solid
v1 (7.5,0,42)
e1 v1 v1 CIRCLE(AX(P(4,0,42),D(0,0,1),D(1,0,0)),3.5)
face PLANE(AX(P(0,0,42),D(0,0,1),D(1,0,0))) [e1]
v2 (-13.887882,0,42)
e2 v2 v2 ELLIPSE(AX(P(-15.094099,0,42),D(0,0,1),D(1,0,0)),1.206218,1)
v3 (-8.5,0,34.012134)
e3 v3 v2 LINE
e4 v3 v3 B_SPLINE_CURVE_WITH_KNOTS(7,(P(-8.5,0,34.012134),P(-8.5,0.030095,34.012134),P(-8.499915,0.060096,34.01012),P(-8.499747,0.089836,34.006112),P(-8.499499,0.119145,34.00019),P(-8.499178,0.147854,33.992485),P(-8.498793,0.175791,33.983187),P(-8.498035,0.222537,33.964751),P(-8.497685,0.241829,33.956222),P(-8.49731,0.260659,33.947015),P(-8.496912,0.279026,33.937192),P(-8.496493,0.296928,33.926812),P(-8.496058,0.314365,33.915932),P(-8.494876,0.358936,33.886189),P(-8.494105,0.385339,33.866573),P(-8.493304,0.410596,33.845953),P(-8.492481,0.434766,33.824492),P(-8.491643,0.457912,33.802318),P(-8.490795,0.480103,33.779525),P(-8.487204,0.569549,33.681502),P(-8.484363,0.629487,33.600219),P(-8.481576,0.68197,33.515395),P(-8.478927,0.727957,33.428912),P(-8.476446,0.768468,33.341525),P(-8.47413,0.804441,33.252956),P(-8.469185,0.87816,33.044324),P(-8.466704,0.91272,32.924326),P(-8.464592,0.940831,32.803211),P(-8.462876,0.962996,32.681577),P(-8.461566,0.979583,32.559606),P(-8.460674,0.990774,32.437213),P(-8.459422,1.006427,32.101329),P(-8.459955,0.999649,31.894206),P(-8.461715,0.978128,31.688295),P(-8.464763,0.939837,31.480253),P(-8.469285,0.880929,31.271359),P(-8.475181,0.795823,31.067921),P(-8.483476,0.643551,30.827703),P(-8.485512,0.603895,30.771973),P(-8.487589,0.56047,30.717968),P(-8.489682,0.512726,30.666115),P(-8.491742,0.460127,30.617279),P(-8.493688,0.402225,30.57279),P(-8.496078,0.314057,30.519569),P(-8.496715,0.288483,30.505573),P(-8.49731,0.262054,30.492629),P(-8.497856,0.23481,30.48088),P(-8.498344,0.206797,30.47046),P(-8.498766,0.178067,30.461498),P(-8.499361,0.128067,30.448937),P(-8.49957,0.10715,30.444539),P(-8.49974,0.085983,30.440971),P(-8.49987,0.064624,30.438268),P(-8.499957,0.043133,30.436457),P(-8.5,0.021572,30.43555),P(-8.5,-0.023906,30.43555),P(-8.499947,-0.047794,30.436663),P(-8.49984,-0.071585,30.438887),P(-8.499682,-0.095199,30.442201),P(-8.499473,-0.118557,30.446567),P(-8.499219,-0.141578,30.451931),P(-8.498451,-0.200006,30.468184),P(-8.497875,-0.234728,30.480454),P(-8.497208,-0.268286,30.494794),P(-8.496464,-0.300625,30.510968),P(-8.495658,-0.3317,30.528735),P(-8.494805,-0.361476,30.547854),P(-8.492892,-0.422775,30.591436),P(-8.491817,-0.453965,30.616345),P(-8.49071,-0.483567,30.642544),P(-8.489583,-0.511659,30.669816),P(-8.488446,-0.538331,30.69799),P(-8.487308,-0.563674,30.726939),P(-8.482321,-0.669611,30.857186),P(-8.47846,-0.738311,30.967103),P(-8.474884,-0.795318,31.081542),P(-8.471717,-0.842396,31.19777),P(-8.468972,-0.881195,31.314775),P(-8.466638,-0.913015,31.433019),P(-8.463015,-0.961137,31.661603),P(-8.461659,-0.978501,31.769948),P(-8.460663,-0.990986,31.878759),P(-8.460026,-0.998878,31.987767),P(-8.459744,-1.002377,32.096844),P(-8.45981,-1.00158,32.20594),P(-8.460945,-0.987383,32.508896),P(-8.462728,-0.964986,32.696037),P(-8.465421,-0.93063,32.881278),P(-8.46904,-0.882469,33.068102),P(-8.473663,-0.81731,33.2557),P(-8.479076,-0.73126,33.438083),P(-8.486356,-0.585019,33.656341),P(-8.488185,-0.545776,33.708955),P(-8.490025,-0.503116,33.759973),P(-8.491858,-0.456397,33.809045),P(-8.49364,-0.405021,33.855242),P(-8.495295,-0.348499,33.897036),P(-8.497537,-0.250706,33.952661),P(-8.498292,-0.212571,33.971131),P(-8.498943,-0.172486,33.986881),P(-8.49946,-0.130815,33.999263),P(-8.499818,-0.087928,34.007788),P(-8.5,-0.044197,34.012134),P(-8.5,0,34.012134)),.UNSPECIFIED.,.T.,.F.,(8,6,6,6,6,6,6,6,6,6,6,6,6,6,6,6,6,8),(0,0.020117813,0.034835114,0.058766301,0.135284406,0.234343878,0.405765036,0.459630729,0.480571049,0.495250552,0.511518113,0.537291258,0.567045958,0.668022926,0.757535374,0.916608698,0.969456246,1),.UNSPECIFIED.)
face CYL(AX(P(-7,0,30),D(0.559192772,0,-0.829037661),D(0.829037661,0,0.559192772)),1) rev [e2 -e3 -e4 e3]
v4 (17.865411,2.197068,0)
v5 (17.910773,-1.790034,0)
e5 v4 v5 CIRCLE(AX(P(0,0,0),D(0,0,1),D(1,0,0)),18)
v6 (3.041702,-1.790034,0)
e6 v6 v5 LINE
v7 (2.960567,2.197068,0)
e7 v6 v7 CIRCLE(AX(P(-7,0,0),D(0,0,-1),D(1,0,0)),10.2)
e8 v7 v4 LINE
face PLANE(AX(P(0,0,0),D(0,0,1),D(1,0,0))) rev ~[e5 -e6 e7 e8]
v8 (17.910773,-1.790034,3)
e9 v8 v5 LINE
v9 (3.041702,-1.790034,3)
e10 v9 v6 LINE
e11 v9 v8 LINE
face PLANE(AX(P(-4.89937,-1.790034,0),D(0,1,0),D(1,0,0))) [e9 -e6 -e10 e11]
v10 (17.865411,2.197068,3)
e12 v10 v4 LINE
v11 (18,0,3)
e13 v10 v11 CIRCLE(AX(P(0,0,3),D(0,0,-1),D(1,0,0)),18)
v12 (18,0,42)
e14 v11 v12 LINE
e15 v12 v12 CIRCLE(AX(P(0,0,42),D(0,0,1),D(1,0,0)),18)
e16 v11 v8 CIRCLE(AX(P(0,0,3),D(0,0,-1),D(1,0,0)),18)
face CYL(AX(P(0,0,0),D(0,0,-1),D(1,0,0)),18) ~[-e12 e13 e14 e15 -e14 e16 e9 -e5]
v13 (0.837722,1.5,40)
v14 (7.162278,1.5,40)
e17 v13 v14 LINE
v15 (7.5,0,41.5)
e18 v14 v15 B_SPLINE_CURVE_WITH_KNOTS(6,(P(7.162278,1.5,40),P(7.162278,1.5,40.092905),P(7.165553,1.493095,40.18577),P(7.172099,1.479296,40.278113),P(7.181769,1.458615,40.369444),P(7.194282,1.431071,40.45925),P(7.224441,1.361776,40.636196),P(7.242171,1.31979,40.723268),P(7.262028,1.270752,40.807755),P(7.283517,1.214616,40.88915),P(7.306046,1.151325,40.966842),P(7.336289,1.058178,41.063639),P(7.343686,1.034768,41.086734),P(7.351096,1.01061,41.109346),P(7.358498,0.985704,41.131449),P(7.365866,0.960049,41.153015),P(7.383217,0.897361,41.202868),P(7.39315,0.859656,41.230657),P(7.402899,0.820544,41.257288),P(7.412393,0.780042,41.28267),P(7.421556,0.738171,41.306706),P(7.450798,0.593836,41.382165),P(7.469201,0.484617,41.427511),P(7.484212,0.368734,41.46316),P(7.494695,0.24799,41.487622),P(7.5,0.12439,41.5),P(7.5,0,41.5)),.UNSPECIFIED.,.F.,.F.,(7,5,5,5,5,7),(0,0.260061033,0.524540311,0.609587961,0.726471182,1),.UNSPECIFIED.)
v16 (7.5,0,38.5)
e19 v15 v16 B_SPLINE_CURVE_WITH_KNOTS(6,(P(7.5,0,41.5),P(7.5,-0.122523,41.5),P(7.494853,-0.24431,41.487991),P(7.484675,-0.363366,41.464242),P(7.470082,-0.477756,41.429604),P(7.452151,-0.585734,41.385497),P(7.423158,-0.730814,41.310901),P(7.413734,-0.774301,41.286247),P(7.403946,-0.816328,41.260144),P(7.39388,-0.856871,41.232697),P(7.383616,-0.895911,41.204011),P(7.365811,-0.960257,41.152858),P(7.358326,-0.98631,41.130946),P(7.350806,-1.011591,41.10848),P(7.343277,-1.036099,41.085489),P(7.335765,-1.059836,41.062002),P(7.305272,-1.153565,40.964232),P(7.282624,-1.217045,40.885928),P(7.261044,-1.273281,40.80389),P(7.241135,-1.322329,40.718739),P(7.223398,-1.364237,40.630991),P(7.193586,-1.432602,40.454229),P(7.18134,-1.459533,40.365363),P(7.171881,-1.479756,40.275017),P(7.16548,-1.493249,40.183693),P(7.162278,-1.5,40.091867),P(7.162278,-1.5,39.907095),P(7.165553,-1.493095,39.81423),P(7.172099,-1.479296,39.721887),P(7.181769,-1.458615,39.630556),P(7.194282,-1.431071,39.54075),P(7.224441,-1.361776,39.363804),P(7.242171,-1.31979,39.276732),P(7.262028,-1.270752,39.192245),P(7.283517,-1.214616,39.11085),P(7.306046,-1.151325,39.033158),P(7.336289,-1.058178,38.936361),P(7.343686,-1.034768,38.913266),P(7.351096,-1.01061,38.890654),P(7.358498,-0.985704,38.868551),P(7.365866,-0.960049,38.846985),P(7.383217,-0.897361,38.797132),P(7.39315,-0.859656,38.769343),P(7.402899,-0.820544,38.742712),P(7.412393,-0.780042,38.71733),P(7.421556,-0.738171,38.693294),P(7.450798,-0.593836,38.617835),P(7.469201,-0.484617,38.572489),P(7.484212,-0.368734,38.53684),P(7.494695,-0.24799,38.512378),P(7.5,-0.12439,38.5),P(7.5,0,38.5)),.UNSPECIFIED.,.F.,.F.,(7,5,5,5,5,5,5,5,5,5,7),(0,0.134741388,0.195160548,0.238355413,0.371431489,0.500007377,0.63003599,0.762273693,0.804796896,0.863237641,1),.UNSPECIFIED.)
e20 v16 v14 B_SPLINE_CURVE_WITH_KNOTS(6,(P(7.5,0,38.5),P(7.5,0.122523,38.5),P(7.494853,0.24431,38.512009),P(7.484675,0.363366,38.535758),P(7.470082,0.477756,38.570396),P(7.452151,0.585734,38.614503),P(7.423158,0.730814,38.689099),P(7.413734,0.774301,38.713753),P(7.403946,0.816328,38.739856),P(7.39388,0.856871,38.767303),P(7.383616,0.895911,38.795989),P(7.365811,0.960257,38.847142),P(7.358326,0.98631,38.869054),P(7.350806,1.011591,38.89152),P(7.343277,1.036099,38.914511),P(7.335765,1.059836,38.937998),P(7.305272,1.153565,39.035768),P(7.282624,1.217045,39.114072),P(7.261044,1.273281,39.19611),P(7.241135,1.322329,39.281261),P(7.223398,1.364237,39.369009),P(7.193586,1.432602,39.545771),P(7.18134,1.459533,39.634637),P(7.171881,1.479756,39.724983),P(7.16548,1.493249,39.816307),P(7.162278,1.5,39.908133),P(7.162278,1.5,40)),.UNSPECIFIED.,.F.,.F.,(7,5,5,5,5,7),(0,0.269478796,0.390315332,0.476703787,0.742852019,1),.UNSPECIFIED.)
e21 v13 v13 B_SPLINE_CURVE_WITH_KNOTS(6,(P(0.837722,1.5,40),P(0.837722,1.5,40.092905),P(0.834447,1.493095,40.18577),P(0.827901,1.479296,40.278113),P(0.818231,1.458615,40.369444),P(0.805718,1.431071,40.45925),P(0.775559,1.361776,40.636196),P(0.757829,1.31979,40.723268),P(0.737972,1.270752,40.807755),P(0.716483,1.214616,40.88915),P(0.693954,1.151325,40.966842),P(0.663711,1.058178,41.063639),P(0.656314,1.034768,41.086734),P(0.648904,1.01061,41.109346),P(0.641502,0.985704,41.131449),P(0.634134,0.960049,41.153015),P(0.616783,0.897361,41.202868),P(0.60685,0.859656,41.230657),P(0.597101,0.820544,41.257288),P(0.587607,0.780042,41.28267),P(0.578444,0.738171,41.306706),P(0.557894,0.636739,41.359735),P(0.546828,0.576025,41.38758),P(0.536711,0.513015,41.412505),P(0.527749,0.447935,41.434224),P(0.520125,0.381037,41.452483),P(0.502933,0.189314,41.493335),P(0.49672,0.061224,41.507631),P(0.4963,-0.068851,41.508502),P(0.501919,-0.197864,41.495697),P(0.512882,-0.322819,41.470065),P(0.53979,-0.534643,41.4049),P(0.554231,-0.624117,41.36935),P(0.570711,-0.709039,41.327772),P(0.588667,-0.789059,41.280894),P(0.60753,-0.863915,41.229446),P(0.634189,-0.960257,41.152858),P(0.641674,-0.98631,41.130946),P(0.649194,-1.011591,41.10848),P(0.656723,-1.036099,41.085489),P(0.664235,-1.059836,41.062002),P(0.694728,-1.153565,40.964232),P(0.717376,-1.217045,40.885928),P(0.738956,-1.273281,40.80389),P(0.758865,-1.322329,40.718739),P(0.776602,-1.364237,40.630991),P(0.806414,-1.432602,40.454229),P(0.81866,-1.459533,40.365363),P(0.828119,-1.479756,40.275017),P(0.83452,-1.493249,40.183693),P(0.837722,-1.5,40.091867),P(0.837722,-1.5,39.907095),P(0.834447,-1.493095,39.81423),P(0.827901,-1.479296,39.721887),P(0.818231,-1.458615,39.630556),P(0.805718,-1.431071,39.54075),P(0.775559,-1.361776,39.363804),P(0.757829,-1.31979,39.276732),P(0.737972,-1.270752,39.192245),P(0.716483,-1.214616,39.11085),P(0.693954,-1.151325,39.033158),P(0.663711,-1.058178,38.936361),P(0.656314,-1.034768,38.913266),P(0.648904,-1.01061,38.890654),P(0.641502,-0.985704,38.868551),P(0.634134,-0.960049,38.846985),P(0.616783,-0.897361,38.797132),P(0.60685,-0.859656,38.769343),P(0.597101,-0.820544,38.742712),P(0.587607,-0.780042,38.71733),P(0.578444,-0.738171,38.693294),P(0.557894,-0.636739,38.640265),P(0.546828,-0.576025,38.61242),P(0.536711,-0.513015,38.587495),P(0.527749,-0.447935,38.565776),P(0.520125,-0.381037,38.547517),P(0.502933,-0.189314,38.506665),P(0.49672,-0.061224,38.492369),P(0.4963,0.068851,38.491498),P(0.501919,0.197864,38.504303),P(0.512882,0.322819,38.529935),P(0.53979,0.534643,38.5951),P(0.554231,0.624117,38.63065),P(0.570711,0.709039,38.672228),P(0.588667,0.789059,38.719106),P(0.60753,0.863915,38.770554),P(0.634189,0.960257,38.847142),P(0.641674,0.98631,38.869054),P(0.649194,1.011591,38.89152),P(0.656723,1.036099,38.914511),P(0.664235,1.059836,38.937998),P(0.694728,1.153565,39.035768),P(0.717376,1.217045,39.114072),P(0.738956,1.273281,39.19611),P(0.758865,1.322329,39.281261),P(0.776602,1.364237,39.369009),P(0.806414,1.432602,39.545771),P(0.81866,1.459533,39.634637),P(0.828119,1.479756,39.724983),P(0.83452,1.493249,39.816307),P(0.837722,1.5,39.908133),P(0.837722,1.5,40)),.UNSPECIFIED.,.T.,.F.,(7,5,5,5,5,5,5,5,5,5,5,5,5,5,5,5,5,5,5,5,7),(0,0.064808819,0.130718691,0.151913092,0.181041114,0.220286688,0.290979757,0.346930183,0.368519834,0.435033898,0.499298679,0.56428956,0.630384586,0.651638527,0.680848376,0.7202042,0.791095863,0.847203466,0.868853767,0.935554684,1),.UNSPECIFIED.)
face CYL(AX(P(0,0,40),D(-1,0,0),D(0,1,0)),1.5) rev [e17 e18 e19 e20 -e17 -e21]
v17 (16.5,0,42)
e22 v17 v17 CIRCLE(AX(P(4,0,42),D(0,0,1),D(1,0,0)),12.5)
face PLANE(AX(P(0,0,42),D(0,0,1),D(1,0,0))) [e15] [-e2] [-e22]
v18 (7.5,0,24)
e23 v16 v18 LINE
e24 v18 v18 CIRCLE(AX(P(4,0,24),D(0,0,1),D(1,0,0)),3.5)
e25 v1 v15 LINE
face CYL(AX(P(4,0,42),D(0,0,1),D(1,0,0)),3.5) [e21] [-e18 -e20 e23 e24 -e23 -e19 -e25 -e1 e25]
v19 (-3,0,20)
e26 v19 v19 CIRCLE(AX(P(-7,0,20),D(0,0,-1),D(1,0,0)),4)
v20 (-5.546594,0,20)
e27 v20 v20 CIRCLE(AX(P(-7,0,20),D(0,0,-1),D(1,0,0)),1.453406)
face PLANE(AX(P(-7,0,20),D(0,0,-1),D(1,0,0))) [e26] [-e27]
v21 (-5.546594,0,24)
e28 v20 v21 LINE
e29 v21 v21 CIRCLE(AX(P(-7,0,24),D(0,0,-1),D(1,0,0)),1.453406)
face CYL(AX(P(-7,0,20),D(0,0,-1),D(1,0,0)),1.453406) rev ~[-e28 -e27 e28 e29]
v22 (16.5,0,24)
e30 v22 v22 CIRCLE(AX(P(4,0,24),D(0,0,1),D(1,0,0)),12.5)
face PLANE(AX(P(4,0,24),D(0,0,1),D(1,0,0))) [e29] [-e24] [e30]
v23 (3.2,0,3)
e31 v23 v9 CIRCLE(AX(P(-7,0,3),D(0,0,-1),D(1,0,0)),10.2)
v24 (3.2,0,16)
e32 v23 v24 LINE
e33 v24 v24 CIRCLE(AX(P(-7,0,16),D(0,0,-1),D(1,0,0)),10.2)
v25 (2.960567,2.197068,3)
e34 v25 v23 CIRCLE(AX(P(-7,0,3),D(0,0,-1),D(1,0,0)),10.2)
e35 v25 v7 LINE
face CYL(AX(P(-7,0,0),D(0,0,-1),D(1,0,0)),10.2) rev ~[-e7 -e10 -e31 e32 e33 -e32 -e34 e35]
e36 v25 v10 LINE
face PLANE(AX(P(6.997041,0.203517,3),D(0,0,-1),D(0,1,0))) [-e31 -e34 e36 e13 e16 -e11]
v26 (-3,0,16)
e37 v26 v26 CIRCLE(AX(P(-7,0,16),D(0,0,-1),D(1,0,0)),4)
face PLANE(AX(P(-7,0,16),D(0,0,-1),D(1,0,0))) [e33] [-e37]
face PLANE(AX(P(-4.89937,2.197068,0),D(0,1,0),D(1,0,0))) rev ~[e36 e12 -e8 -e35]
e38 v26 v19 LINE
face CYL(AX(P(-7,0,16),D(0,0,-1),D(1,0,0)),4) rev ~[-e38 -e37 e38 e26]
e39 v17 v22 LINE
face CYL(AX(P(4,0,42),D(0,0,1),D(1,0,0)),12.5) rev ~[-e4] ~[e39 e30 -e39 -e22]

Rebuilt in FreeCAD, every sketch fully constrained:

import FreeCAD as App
import Part
import Sketcher

V = App.Vector

doc = App.newDocument("Part")
params = doc.addObject("Spreadsheet::Sheet", "Params")
for row, (alias, value) in enumerate([
    ("sketch1_diameter", "36 mm"),
    ("pad1_length", "42 mm"),
    ("sketch2_diameter", "20.4 mm"),
    ("pocket1_length", "16 mm"),
    ("sketch3_diameter", "25 mm"),
    ("sketch3_diameter2", "7 mm"),
    ("pocket2_length", "18 mm"),
    ("sketch4_diameter", "8 mm"),
    ("pocket3_length", "4 mm"),
    ("pocket4_length", "5 mm"),
    ("sketch6_diameter", "2 mm"),
    ("pocket5_length", "33 mm"),
    ("sketch7_diameter", "3 mm"),
    ("pocket6_length", "10 mm"),
    ("pocket7_length", "3 mm"),
], start=1):
    params.set(f"A{row}", alias)
    params.set(f"B{row}", "=" + value)
    params.setAlias(f"B{row}", alias)

body = doc.addObject("PartDesign::Body", "Body")

sketch1 = doc.addObject("Sketcher::SketchObject", "Sketch")
body.addObject(sketch1)
sketch1.AttachmentSupport = (doc.XY_Plane, [""])
sketch1.MapMode = "FlatFace"
sketch1.addGeometry(Part.Circle(V(0, 0, 0), V(0, 0, 1), 18), False)
sketch1.addConstraint(Sketcher.Constraint("Coincident", 0, 3, -1, 1))
sketch1.addConstraint(Sketcher.Constraint("Diameter", 0, 36.0))
sketch1.setExpression("Constraints[1]", "Params.sketch1_diameter")
pad1 = doc.addObject("PartDesign::Pad", "Pad")
body.addObject(pad1)
pad1.Profile = sketch1
pad1.setExpression("Length", "Params.pad1_length")

sketch2 = doc.addObject("Sketcher::SketchObject", "Sketch001")
body.addObject(sketch2)
sketch2.AttachmentSupport = (doc.XY_Plane, [""])
sketch2.MapMode = "FlatFace"
sketch2.addGeometry(Part.Circle(V(-7, 0, 0), V(0, 0, 1), 10), False)
sketch2.addConstraint(Sketcher.Constraint("PointOnObject", 0, 3, -1))
sketch2.addConstraint(Sketcher.Constraint("Diameter", 0, 20.4))
sketch2.addConstraint(Sketcher.Constraint("DistanceX", 0, 3, -1, 1, 7.0))
sketch2.setExpression("Constraints[1]", "Params.sketch2_diameter")
pocket1 = doc.addObject("PartDesign::Pocket", "Pocket")
body.addObject(pocket1)
pocket1.Profile = sketch2
pocket1.setExpression("Length", "Params.pocket1_length")
pocket1.Reversed = True

sketch3 = doc.addObject("Sketcher::SketchObject", "Sketch002")
body.addObject(sketch3)
sketch3.AttachmentSupport = (doc.XY_Plane, [""])
sketch3.MapMode = "FlatFace"
sketch3.AttachmentOffset = App.Placement(V(0, 0, 42), App.Rotation())
sketch3.addGeometry(Part.Circle(V(4, 0, 0), V(0, 0, 1), 12.5), False)
sketch3.addGeometry(Part.Circle(V(4, 0, 0), V(0, 0, 1), 3.5), False)
sketch3.addConstraint(Sketcher.Constraint("Coincident", 1, 3, 0, 3))
sketch3.addConstraint(Sketcher.Constraint("PointOnObject", 0, 3, -1))
sketch3.addConstraint(Sketcher.Constraint("Diameter", 0, 25.0))
sketch3.addConstraint(Sketcher.Constraint("Diameter", 1, 7.0))
sketch3.addConstraint(Sketcher.Constraint("DistanceX", -1, 1, 0, 3, 4.0))
sketch3.setExpression("Constraints[2]", "Params.sketch3_diameter")
sketch3.setExpression("Constraints[3]", "Params.sketch3_diameter2")
pocket2 = doc.addObject("PartDesign::Pocket", "Pocket001")
body.addObject(pocket2)
pocket2.Profile = sketch3
pocket2.setExpression("Length", "Params.pocket2_length")

sketch4 = doc.addObject("Sketcher::SketchObject", "Sketch003")
body.addObject(sketch4)
sketch4.AttachmentSupport = (doc.XY_Plane, [""])
sketch4.MapMode = "FlatFace"
sketch4.AttachmentOffset = App.Placement(V(0, 0, 16), App.Rotation())
sketch4.addGeometry(Part.Circle(V(-7, 0, 0), V(0, 0, 1), 4), False)
sketch4.addConstraint(Sketcher.Constraint("PointOnObject", 0, 3, -1))
sketch4.addConstraint(Sketcher.Constraint("Diameter", 0, 8.0))
sketch4.addConstraint(Sketcher.Constraint("DistanceX", 0, 3, -1, 1, 7.0))
sketch4.setExpression("Constraints[1]", "Params.sketch4_diameter")
pocket3 = doc.addObject("PartDesign::Pocket", "Pocket002")
body.addObject(pocket3)
pocket3.Profile = sketch4
pocket3.setExpression("Length", "Params.pocket3_length")
pocket3.Reversed = True

sketch5 = doc.addObject("Sketcher::SketchObject", "Sketch004")
body.addObject(sketch5)
sketch5.AttachmentSupport = (doc.XY_Plane, [""])
sketch5.MapMode = "FlatFace"
sketch5.AttachmentOffset = App.Placement(V(0, 0, 20), App.Rotation())
sketch5.addGeometry(Part.Circle(V(-7, 0, 0), V(0, 0, 1), 1.5), False)
sketch5.addConstraint(Sketcher.Constraint("PointOnObject", 0, 3, -1))
sketch5.addConstraint(Sketcher.Constraint("DistanceX", 0, 3, -1, 1, 7.0))
sketch5.addConstraint(Sketcher.Constraint("Diameter", 0, 2.906812))
pocket4 = doc.addObject("PartDesign::Pocket", "Pocket003")
body.addObject(pocket4)
pocket4.Profile = sketch5
pocket4.setExpression("Length", "Params.pocket4_length")
pocket4.Reversed = True

sketch6 = doc.addObject("Sketcher::SketchObject", "Sketch005")
body.addObject(sketch6)
sketch6.Placement = App.Placement(V(-7, 0, 30), App.Rotation(V(0.829037661, 0, 0.559192772), V(0, 1, 0), V(-0.559192772, 0, 0.829037661), "ZXY"))
sketch6.addGeometry(Part.Circle(V(0, 0, 0), V(0, 0, 1), 1), False)
sketch6.addConstraint(Sketcher.Constraint("Coincident", 0, 3, -1, 1))
sketch6.addConstraint(Sketcher.Constraint("Diameter", 0, 2.0))
sketch6.setExpression("Constraints[1]", "Params.sketch6_diameter")
pocket5 = doc.addObject("PartDesign::Pocket", "Pocket004")
body.addObject(pocket5)
pocket5.Profile = sketch6
pocket5.setExpression("Length", "Params.pocket5_length")
pocket5.Reversed = True

sketch7 = doc.addObject("Sketcher::SketchObject", "Sketch006")
body.addObject(sketch7)
sketch7.AttachmentSupport = (doc.YZ_Plane, [""])
sketch7.MapMode = "FlatFace"
sketch7.addGeometry(Part.Circle(V(0, 40, 0), V(0, 0, 1), 1.5), False)
sketch7.addConstraint(Sketcher.Constraint("PointOnObject", 0, 3, -2))
sketch7.addConstraint(Sketcher.Constraint("Diameter", 0, 3.0))
sketch7.addConstraint(Sketcher.Constraint("DistanceY", -1, 1, 0, 3, 40.0))
sketch7.setExpression("Constraints[1]", "Params.sketch7_diameter")
pocket6 = doc.addObject("PartDesign::Pocket", "Pocket005")
body.addObject(pocket6)
pocket6.Profile = sketch7
pocket6.setExpression("Length", "Params.pocket6_length")
pocket6.Reversed = True

sketch8 = doc.addObject("Sketcher::SketchObject", "Sketch007")
body.addObject(sketch8)
sketch8.AttachmentSupport = (doc.XY_Plane, [""])
sketch8.MapMode = "FlatFace"
sketch8.addGeometry(Part.LineSegment(V(18.9, -1.8, 0), V(-4.9, -1.8, 0)), False)
sketch8.addGeometry(Part.LineSegment(V(-4.9, -1.8, 0), V(-4.9, 2.2, 0)), False)
sketch8.addGeometry(Part.LineSegment(V(-4.9, 2.2, 0), V(18.9, 2.2, 0)), False)
sketch8.addGeometry(Part.LineSegment(V(18.9, 2.2, 0), V(18.9, -1.8, 0)), False)
sketch8.addConstraint(Sketcher.Constraint("Coincident", 0, 2, 1, 1))
sketch8.addConstraint(Sketcher.Constraint("Coincident", 1, 2, 2, 1))
sketch8.addConstraint(Sketcher.Constraint("Coincident", 2, 2, 3, 1))
sketch8.addConstraint(Sketcher.Constraint("Coincident", 3, 2, 0, 1))
sketch8.addConstraint(Sketcher.Constraint("Horizontal", 0))
sketch8.addConstraint(Sketcher.Constraint("Vertical", 1))
sketch8.addConstraint(Sketcher.Constraint("Horizontal", 2))
sketch8.addConstraint(Sketcher.Constraint("Vertical", 3))
sketch8.addConstraint(Sketcher.Constraint("DistanceY", 1, 1, 1, 2, 3.987101))
sketch8.addConstraint(Sketcher.Constraint("DistanceX", 0, 2, 0, 1, 23.792822))
sketch8.addConstraint(Sketcher.Constraint("DistanceX", 0, 2, -1, 1, 4.89937))
sketch8.addConstraint(Sketcher.Constraint("DistanceY", 0, 2, -1, 1, 1.790034))
pocket7 = doc.addObject("PartDesign::Pocket", "Pocket006")
body.addObject(pocket7)
pocket7.Profile = sketch8
pocket7.setExpression("Length", "Params.pocket7_length")
pocket7.Reversed = True

doc.recompute()
